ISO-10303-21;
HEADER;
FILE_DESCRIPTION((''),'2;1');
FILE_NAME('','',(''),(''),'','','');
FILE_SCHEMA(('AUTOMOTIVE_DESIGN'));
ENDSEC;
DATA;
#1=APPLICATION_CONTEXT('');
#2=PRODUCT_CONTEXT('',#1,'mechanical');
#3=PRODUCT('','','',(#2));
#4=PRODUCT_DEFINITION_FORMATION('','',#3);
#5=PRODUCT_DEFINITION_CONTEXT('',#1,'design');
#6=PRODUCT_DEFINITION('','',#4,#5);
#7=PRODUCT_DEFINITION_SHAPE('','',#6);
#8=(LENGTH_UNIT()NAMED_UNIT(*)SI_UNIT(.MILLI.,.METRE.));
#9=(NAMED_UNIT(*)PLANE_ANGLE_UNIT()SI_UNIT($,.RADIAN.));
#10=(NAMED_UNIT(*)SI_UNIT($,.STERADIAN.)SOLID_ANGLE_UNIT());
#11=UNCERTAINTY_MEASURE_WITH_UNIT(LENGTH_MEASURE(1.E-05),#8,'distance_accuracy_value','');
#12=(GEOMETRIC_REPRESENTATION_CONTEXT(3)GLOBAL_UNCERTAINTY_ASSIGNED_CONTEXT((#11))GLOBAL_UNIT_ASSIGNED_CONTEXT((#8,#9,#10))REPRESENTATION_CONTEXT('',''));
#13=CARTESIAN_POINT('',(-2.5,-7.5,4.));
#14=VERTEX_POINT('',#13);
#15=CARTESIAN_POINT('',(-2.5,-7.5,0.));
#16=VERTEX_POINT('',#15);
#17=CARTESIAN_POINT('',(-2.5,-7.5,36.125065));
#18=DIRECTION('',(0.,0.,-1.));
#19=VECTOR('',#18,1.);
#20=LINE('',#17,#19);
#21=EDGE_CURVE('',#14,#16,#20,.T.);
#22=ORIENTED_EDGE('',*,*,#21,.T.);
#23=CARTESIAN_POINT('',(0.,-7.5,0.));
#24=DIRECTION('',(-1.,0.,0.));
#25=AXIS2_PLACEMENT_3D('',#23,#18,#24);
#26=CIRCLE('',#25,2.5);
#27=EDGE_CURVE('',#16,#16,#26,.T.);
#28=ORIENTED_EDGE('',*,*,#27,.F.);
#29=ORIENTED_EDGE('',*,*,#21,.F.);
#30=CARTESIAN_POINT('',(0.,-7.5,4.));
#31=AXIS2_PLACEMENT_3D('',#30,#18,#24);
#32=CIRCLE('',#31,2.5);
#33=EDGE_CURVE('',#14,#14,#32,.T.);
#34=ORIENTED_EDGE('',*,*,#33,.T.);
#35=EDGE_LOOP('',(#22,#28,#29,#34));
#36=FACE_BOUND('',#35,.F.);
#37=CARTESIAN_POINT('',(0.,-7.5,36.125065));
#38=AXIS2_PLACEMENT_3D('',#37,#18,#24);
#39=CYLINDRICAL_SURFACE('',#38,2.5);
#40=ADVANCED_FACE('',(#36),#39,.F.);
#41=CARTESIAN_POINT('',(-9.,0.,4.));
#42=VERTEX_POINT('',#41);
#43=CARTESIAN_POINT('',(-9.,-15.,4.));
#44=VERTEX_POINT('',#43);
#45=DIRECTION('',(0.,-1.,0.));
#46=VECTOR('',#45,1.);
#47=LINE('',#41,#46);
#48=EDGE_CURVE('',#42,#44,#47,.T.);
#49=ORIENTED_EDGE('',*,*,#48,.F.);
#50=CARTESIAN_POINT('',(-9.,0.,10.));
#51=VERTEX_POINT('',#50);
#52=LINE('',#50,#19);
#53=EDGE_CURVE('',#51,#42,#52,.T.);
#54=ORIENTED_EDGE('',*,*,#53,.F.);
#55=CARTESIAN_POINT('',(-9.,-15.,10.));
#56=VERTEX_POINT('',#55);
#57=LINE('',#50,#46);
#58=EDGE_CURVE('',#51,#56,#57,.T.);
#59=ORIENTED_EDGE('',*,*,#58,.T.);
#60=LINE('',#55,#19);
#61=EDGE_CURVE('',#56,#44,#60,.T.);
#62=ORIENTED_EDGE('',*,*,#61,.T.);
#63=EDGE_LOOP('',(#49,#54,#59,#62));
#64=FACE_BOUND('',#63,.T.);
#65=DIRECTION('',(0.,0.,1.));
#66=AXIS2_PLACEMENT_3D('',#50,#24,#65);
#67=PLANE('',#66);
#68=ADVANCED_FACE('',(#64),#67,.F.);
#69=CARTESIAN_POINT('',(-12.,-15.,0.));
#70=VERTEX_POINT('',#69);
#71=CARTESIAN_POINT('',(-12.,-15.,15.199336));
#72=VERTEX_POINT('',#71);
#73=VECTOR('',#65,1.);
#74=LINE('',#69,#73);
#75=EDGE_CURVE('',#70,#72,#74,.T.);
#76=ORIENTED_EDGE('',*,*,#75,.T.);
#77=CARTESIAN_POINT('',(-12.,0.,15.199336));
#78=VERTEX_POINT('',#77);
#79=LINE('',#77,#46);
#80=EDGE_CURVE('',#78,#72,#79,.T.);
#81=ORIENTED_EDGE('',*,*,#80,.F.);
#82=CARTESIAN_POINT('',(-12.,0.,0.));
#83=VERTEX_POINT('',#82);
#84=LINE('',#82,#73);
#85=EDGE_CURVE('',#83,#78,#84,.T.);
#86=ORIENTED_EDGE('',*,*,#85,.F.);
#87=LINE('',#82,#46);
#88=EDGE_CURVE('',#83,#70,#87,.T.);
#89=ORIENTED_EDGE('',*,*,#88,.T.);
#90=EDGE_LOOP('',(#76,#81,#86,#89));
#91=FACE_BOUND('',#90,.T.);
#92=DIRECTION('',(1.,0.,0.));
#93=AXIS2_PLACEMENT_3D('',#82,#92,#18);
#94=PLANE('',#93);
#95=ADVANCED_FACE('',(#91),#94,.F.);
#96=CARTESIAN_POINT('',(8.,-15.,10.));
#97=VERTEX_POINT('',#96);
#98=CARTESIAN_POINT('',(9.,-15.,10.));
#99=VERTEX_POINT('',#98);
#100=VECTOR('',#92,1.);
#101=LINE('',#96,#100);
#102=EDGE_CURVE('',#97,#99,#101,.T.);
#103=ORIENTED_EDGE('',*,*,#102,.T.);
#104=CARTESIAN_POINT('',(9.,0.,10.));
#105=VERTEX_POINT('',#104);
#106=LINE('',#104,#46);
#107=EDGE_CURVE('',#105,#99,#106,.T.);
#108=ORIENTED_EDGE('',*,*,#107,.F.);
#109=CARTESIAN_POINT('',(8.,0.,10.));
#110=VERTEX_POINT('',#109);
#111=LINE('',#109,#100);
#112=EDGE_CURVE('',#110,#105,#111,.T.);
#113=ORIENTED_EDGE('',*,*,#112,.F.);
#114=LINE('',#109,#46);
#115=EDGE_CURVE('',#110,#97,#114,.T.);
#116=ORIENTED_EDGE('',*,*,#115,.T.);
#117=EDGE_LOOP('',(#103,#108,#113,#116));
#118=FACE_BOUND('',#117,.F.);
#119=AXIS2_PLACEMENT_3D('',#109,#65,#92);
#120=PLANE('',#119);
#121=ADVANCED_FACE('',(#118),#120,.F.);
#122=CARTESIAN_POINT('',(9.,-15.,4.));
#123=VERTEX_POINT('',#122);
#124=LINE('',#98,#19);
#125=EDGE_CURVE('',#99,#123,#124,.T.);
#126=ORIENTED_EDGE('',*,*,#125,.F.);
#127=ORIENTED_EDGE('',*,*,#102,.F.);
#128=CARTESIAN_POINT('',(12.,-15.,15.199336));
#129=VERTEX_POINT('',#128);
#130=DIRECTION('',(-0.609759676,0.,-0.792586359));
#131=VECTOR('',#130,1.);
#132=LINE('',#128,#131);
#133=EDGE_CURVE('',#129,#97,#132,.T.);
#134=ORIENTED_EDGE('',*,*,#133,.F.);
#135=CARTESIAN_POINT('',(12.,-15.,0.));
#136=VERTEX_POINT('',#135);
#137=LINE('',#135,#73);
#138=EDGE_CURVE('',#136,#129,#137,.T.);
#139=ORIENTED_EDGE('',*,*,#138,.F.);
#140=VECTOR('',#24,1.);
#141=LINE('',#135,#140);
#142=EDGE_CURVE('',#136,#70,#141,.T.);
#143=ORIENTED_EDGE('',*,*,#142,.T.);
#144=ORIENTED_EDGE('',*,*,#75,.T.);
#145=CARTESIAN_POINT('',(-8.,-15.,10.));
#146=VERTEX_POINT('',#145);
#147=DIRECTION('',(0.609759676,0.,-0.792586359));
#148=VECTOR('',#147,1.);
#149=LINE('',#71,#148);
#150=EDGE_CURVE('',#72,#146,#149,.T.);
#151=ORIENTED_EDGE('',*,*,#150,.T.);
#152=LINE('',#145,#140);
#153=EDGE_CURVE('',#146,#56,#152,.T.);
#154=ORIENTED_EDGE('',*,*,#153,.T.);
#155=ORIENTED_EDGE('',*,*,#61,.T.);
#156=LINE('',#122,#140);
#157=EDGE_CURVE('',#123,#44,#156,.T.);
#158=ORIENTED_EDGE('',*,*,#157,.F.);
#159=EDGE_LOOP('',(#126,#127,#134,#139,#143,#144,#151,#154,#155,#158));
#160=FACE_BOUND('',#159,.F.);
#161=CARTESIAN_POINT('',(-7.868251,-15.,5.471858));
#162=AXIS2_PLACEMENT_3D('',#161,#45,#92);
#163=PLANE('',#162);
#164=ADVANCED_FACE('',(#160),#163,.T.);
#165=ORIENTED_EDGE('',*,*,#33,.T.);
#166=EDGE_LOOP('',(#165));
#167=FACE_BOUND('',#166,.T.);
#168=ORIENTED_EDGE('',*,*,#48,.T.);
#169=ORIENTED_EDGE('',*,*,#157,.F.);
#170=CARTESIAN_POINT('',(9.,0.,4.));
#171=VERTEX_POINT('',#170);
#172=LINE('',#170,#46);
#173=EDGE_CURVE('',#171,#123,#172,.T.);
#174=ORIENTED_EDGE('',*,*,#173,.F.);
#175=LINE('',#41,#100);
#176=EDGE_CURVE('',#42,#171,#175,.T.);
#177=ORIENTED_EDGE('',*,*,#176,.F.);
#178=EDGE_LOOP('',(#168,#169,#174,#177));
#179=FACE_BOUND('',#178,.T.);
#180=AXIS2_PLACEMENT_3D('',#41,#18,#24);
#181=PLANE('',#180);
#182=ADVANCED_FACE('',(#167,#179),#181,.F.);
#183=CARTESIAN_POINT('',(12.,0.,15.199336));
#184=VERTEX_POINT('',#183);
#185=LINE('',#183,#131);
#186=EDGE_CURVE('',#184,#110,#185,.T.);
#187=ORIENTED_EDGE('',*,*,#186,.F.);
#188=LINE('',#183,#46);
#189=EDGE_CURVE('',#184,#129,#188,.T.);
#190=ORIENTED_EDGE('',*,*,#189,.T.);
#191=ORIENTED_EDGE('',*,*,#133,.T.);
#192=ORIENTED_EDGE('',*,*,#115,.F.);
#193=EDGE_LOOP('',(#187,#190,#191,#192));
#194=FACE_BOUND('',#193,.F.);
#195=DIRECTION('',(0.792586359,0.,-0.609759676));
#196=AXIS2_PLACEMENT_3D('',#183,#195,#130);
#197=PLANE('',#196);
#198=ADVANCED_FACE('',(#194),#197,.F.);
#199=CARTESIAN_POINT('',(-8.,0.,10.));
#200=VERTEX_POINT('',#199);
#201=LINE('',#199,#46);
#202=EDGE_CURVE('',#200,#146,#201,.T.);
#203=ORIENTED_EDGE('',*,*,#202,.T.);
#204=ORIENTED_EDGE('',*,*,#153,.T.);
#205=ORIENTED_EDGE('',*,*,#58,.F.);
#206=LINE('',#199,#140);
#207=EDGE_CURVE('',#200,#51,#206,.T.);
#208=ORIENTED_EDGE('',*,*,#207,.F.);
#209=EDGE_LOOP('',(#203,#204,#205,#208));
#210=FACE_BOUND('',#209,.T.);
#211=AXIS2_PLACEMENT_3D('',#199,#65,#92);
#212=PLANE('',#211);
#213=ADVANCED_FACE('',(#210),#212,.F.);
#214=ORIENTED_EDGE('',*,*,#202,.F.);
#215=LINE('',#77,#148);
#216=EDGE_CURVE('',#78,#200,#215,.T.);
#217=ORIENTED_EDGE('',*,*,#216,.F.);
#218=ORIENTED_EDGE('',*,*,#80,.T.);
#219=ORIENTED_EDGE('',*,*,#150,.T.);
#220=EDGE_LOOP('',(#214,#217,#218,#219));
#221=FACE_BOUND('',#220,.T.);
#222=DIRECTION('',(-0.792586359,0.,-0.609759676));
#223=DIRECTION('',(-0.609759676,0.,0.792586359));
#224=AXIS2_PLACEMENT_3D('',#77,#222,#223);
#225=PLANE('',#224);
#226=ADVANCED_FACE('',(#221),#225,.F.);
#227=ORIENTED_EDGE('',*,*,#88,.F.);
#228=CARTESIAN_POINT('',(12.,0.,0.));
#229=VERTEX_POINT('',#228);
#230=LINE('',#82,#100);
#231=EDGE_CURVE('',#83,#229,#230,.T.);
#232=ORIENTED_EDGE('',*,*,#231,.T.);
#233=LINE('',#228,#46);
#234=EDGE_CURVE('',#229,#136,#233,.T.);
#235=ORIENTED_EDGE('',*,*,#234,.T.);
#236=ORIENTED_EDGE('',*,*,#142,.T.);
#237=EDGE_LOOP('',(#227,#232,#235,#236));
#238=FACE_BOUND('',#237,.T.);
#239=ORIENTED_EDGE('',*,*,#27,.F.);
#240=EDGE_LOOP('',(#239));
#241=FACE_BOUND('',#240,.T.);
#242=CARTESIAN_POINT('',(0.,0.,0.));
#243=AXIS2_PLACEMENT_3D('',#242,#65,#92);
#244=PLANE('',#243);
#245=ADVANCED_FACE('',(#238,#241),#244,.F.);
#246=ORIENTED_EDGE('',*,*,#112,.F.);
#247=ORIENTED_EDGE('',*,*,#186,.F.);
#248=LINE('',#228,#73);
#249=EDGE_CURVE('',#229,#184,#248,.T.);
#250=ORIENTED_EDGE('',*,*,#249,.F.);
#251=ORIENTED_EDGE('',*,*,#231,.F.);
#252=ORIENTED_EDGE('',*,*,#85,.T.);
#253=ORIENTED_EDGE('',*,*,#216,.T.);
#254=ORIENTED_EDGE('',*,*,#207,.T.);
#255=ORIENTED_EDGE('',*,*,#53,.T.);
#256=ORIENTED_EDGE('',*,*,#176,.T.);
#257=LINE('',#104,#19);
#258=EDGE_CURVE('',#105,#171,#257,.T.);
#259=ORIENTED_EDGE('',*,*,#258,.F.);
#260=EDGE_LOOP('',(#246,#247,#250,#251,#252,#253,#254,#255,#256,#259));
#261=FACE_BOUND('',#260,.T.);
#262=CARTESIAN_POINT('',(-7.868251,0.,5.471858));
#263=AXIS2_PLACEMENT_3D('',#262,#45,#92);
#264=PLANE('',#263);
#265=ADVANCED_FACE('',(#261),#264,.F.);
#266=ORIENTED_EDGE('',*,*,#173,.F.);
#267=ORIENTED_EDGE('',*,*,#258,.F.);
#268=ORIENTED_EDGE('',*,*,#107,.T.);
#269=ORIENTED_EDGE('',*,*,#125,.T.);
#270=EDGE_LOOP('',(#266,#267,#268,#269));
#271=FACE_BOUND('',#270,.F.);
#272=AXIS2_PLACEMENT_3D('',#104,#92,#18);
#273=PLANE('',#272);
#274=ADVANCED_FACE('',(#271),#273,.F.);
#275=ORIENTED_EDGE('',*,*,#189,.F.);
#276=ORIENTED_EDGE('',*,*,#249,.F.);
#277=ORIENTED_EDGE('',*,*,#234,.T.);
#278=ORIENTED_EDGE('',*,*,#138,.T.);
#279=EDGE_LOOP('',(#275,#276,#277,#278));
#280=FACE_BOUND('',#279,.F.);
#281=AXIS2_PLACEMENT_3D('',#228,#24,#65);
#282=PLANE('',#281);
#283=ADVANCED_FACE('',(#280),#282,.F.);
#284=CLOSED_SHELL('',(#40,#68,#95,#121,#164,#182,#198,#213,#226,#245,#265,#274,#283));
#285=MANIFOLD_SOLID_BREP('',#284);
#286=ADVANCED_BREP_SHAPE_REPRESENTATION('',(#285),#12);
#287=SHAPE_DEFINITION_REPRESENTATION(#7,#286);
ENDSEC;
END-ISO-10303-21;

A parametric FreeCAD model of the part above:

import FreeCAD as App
import Part
import Sketcher

V = App.Vector


def add_polygon(sketch, points):
    """Adds a closed chain of lines whose ends are joined by coincident constraints."""
    first, n = sketch.GeometryCount, len(points)
    for a, b in zip(points, points[1:] + points[:1]):
        sketch.addGeometry(Part.LineSegment(App.Vector(*a, 0), App.Vector(*b, 0)), False)
    for i in range(n):
        sketch.addConstraint(Sketcher.Constraint("Coincident", first + i, 2, first + (i + 1) % n, 1))

doc = App.newDocument("Part")
body = doc.addObject("PartDesign::Body", "Body")

# Sketch on XZ plane
sketch1 = body.newObject("Sketcher::SketchObject", "Sketch")
sketch1.AttachmentSupport = (doc.getObject("XZ_Plane"), [""])
sketch1.MapMode = "FlatFace"
add_polygon(sketch1, [(0, 0), (12, 0), (12, 15.2), (8, 10), (9, 10), (9, 4), (0, 4)])  # lines 0-6
sketch1.addConstraint([
    Sketcher.Constraint("Horizontal", 0),
    Sketcher.Constraint("Vertical", 1),
    Sketcher.Constraint("Horizontal", 3),
    Sketcher.Constraint("Vertical", 4),
    Sketcher.Constraint("Horizontal", 5),
    Sketcher.Constraint("Vertical", 6),
    Sketcher.Constraint("Coincident", 6, 2, -1, 1),
    Sketcher.Constraint("DistanceX", 0, 1, 0, 2, 12.0),
    Sketcher.Constraint("DistanceX", 3, 1, 3, 2, 1.0),
    Sketcher.Constraint("DistanceX", 5, 2, 5, 1, 9.0),
    Sketcher.Constraint("DistanceY", 4, 2, 4, 1, 6.0),
    Sketcher.Constraint("DistanceY", 6, 2, 6, 1, 4.0),
    Sketcher.Constraint("Distance", 2, 6.559961),
])
pad1 = body.newObject("PartDesign::Pad", "Pad")
pad1.Profile = sketch1
pad1.Length = 15
body2 = doc.addObject("PartDesign::Body", "Body001")
doc.recompute()

body2.BaseFeature = body
doc.recompute()

mirroring = doc.addObject("Part::Mirroring", "Mirroring")
mirroring.Source = body
mirroring.Base = V(0, -7.5, 2)
mirroring.Normal = V(-1, 0, 0)
body3 = doc.addObject("PartDesign::Body", "Body002")
body3.BaseFeature = mirroring
boolean = body2.newObject("PartDesign::Boolean", "Boolean")
boolean.Type = "Fuse"
boolean.addObjects([body3])
doc.recompute()

# Sketch on XY plane
sketch2 = body2.newObject("Sketcher::SketchObject", "Sketch001")
sketch2.AttachmentSupport = (doc.getObject("XY_Plane001"), [""])
sketch2.MapMode = "FlatFace"
sketch2.AttachmentOffset = App.Placement(V(0, 0, 4), App.Rotation())
sketch2.addGeometry(Part.Circle(V(0, -7.5, 0), V(0, 0, 1), 2.5), False)
sketch2.addConstraint([
    Sketcher.Constraint("PointOnObject", 0, 3, -2),
    Sketcher.Constraint("Diameter", 0, 5.0),
    Sketcher.Constraint("DistanceY", 0, 3, -1, 1, 7.5),
])
doc.recompute()
hole = body2.newObject("PartDesign::Hole", "Hole")
hole.Profile = sketch2
hole.ThreadType = "None"
hole.Diameter = 5
hole.DepthType = "ThroughAll"
mirroring.Visibility = False

doc.recompute()
